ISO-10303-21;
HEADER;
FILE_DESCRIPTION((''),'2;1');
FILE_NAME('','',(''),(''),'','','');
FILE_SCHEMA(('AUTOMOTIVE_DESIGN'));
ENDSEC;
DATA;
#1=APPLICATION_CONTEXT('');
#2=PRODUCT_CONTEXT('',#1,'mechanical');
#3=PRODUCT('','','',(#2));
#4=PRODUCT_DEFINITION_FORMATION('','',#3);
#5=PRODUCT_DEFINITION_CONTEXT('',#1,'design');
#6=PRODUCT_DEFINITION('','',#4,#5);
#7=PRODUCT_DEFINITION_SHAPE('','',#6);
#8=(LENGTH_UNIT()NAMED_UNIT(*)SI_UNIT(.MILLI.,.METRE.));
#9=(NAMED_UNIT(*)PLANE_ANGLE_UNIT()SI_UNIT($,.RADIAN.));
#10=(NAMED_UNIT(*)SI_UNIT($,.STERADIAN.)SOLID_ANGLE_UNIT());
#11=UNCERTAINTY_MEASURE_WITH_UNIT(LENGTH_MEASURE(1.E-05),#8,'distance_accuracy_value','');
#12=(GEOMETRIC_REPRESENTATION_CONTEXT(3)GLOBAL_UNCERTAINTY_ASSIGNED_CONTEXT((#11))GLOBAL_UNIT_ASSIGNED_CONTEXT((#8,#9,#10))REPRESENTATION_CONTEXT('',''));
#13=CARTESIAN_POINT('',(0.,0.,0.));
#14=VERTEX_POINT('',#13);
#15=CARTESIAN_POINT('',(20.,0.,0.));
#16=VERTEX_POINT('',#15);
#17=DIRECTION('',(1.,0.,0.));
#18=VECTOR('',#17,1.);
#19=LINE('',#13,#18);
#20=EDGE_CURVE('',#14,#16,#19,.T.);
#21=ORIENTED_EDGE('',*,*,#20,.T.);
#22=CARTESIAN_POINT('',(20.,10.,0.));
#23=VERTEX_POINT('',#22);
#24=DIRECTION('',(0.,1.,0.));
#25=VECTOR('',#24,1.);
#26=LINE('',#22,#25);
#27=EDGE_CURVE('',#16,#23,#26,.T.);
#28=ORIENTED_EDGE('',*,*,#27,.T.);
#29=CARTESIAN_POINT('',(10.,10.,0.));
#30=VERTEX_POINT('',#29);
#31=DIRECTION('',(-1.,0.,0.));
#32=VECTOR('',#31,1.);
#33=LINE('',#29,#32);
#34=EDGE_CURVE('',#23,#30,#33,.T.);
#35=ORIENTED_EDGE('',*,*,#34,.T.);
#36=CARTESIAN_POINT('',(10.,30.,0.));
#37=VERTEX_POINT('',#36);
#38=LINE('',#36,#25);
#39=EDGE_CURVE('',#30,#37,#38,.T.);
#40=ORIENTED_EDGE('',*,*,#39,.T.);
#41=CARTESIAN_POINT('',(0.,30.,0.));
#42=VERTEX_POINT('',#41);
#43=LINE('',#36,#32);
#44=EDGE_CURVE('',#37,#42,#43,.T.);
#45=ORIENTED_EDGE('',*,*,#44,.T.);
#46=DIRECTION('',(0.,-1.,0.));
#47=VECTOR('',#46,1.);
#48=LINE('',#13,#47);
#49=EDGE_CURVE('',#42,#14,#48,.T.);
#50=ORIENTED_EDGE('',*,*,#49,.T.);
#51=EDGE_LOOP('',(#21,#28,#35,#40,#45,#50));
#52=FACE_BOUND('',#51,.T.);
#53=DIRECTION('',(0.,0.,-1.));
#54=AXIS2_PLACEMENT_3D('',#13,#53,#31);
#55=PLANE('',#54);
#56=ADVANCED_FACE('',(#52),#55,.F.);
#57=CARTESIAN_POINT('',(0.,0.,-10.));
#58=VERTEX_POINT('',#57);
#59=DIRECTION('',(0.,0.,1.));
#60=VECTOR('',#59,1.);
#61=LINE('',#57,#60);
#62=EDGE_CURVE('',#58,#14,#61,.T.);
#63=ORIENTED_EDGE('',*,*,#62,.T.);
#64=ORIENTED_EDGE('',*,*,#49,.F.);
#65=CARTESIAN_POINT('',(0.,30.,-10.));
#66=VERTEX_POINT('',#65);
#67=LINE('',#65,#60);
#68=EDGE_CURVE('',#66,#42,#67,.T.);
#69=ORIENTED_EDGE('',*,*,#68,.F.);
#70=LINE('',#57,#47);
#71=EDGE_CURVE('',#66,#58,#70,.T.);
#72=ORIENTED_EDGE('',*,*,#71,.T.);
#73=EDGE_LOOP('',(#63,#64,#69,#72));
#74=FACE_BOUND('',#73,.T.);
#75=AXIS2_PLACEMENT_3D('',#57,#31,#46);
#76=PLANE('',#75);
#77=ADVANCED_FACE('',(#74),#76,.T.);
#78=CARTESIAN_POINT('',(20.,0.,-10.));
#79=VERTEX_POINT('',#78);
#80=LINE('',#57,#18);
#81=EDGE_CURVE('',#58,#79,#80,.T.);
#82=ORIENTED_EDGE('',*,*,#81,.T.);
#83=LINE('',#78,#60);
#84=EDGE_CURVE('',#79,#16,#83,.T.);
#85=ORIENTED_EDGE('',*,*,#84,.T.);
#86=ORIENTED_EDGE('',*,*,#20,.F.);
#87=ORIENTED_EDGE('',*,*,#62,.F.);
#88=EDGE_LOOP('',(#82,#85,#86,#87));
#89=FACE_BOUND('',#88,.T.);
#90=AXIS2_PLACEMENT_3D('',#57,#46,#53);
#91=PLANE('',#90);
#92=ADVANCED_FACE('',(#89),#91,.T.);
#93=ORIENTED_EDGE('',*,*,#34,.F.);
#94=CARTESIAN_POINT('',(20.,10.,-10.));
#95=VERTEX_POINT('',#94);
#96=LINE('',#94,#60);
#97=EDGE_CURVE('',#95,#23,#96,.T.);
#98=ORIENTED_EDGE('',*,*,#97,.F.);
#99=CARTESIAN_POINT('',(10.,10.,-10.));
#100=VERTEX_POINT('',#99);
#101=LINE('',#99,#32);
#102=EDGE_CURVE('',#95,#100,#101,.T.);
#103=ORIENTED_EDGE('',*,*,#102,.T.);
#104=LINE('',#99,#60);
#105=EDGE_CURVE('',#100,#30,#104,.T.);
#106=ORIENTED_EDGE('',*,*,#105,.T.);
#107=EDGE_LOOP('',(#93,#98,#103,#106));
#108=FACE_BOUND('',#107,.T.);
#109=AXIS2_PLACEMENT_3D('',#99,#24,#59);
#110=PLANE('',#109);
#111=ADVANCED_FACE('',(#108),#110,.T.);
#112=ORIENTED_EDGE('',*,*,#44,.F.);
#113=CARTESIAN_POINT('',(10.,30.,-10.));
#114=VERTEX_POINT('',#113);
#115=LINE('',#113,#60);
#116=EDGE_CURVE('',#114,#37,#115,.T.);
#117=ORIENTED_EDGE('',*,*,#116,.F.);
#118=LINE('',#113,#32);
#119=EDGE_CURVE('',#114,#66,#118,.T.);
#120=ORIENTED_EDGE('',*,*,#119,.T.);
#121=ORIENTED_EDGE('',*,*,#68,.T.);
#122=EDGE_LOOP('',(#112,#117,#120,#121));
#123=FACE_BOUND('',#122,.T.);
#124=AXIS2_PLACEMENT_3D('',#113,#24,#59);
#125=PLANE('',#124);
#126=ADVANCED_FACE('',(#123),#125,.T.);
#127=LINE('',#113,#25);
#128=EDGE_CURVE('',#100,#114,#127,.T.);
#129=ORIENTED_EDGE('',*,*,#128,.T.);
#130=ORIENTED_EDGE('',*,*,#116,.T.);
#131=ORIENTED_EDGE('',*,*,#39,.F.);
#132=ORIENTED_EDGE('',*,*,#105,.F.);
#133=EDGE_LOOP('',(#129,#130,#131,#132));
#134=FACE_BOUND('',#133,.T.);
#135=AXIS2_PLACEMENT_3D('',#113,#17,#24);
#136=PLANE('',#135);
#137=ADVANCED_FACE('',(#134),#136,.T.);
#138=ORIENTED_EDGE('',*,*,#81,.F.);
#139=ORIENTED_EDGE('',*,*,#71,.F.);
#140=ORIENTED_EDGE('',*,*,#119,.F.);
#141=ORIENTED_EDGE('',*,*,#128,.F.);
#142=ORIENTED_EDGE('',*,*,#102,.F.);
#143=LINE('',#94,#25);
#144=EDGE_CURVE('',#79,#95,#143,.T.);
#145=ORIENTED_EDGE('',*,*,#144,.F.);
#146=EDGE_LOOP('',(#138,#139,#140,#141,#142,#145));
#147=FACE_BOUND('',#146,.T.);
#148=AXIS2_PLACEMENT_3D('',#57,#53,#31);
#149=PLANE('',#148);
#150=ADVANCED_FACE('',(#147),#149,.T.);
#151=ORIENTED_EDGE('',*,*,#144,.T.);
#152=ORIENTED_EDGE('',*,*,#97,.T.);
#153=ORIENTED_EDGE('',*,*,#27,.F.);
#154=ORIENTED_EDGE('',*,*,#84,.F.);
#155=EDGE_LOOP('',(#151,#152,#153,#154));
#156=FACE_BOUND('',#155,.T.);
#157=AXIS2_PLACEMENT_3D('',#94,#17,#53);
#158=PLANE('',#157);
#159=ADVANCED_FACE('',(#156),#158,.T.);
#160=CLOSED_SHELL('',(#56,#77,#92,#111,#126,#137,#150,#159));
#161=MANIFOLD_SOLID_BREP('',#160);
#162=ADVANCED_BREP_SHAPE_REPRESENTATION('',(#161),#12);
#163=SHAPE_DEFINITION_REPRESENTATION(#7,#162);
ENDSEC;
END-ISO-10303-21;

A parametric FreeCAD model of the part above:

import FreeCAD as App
import Part
import Sketcher
Q = App.Units.Quantity

doc = App.newDocument("Part")
body = doc.addObject("PartDesign::Body", "Body")

# Sketch on XY plane
sketch1 = body.newObject("Sketcher::SketchObject", "Sketch")
sketch1.AttachmentSupport = (doc.getObject("XY_Plane"), [""])
sketch1.MapMode = "FlatFace"
sketch1.addGeometry(Part.LineSegment(App.Vector(0, 30, 0), App.Vector(0, 0, 0)), False)
sketch1.addGeometry(Part.LineSegment(App.Vector(0, 0, 0), App.Vector(20, 0, 0)), False)
sketch1.addGeometry(Part.LineSegment(App.Vector(20, 0, 0), App.Vector(20, 10, 0)), False)
sketch1.addGeometry(Part.LineSegment(App.Vector(20, 10, 0), App.Vector(10, 10, 0)), False)
sketch1.addGeometry(Part.LineSegment(App.Vector(10, 10, 0), App.Vector(10, 30, 0)), False)
sketch1.addGeometry(Part.LineSegment(App.Vector(10, 30, 0), App.Vector(0, 30, 0)), False)
sketch1.addConstraint(Sketcher.Constraint("Coincident", 0, 2, 1, 1))
sketch1.addConstraint(Sketcher.Constraint("Coincident", 1, 2, 2, 1))
sketch1.addConstraint(Sketcher.Constraint("Coincident", 2, 2, 3, 1))
sketch1.addConstraint(Sketcher.Constraint("Coincident", 3, 2, 4, 1))
sketch1.addConstraint(Sketcher.Constraint("Coincident", 4, 2, 5, 1))
sketch1.addConstraint(Sketcher.Constraint("Coincident", 5, 2, 0, 1))
sketch1.addConstraint(Sketcher.Constraint("Vertical", 0))
sketch1.addConstraint(Sketcher.Constraint("Horizontal", 1))
sketch1.addConstraint(Sketcher.Constraint("Vertical", 2))
sketch1.addConstraint(Sketcher.Constraint("Horizontal", 3))
sketch1.addConstraint(Sketcher.Constraint("Vertical", 4))
sketch1.addConstraint(Sketcher.Constraint("Horizontal", 5))
sketch1.addConstraint(Sketcher.Constraint("Coincident", 0, 2, -1, 1))
sketch1.addConstraint(Sketcher.Constraint("Equal", 3, 5))
sketch1.addConstraint(Sketcher.Constraint("Equal", 5, 2))
sketch1.addConstraint(Sketcher.Constraint("Equal", 1, 4))
sketch1.addConstraint(Sketcher.Constraint("DistanceX", 1, 1, 1, 2, Q("20 mm")))
pad1 = body.newObject("PartDesign::Pad", "Pad")
pad1.Profile = sketch1
pad1.Length = 10
pad1.Reversed = True

doc.recompute()
